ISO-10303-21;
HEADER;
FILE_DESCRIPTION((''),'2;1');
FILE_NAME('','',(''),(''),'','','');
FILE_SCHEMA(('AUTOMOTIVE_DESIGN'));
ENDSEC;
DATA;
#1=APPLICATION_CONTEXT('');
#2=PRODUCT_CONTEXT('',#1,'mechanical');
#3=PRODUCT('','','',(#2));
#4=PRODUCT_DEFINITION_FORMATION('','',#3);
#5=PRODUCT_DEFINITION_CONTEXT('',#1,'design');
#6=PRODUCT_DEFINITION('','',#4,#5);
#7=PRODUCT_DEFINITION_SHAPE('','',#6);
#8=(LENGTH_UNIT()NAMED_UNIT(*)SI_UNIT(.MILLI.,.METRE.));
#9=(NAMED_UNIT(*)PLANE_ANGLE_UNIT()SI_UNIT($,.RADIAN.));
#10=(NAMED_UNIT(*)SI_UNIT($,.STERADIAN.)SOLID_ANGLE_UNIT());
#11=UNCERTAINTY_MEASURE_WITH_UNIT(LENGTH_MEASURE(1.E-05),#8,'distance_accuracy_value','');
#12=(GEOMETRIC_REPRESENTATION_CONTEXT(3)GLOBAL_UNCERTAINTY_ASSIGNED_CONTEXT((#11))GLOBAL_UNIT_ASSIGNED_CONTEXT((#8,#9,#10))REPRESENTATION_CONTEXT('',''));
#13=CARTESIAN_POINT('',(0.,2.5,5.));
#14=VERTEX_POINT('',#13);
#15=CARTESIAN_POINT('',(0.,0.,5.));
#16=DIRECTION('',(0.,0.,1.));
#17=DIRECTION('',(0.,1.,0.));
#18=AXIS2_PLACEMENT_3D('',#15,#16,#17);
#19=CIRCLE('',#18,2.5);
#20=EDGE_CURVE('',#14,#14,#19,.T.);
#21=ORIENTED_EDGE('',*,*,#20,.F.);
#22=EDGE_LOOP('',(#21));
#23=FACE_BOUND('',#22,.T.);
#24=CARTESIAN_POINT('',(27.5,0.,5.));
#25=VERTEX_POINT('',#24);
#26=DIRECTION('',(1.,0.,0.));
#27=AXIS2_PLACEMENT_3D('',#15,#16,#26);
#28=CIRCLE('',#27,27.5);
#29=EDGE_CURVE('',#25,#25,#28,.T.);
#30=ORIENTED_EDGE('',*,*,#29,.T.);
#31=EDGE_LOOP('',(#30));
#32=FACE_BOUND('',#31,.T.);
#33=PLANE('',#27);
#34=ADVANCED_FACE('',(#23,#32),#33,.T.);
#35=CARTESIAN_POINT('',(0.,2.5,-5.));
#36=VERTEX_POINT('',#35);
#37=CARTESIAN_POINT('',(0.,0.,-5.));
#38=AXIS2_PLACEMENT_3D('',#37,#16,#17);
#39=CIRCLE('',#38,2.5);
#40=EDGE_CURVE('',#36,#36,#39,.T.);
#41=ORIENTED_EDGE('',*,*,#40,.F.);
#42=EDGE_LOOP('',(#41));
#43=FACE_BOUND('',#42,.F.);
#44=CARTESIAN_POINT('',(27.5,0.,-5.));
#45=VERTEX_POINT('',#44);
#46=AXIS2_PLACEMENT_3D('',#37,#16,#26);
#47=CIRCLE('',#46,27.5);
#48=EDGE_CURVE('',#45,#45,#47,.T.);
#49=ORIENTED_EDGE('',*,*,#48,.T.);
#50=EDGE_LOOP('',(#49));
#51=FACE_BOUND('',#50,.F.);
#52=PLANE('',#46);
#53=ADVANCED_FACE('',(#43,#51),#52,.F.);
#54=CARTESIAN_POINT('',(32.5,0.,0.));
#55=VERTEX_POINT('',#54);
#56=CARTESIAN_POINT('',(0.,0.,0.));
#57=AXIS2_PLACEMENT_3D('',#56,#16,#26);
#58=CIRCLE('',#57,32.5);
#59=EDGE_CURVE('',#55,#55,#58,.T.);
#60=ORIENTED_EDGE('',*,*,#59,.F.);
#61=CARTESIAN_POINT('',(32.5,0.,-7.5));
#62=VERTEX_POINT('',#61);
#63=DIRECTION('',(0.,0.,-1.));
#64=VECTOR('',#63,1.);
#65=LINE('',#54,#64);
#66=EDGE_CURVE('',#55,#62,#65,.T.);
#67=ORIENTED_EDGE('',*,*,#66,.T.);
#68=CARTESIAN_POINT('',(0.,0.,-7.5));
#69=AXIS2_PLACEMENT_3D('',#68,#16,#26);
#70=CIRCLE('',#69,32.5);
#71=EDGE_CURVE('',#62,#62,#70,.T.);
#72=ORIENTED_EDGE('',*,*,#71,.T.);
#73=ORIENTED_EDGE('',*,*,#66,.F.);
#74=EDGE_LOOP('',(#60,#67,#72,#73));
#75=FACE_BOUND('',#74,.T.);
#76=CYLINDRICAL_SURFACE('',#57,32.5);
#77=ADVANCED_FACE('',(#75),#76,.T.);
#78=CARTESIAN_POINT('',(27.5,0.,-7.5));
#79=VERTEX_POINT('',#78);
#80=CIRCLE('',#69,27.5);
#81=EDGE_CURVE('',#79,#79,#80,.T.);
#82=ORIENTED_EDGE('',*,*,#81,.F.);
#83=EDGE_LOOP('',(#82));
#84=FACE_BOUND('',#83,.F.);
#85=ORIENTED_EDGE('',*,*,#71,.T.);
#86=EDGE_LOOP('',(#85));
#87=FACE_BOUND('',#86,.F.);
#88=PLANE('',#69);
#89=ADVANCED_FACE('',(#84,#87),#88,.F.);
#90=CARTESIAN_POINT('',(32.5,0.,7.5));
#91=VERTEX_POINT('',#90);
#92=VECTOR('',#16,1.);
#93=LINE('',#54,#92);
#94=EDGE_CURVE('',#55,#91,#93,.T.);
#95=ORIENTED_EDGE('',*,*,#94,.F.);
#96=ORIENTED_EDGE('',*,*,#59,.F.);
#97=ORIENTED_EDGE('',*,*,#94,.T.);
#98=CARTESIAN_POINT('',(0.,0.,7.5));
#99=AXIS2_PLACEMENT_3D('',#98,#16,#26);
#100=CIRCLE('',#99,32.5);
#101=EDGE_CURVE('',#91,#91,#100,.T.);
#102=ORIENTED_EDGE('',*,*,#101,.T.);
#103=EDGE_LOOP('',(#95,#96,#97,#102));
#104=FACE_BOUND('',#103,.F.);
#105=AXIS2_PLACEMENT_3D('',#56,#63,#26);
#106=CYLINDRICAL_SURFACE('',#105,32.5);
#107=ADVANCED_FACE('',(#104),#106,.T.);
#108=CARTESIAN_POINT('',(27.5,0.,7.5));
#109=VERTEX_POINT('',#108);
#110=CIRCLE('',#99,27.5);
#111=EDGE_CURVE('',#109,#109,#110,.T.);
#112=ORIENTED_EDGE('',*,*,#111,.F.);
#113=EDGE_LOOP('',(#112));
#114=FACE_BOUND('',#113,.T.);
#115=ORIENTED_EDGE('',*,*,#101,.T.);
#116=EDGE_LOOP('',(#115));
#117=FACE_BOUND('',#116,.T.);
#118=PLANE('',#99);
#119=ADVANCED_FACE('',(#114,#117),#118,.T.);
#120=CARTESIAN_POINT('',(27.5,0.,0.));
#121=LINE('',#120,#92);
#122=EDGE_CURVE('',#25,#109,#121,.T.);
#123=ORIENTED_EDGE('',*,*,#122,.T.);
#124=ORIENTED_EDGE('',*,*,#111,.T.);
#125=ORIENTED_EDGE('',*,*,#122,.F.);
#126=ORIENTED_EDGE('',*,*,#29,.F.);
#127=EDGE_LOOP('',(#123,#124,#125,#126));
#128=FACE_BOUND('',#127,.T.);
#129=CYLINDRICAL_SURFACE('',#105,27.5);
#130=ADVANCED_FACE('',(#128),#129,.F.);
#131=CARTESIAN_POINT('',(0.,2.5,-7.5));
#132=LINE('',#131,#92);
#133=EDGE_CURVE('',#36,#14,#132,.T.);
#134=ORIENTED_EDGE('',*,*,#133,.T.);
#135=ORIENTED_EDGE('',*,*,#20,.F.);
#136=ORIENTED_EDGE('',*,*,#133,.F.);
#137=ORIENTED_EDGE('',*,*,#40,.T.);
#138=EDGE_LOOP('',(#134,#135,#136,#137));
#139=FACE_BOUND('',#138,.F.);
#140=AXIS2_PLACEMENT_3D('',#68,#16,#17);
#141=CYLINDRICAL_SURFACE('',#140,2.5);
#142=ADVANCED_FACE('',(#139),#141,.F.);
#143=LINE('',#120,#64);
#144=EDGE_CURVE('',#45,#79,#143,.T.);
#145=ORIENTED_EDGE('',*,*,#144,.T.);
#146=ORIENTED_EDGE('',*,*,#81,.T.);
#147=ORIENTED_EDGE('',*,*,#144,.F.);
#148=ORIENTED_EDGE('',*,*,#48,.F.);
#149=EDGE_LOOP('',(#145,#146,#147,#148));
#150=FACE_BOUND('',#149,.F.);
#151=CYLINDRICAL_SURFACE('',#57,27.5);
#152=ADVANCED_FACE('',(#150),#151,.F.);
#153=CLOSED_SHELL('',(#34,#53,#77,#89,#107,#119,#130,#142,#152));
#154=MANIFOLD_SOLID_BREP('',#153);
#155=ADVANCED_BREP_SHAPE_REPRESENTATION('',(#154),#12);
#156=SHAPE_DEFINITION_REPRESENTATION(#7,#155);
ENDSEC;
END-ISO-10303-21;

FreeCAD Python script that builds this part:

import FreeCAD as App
import Part
import Sketcher
from FreeCAD import Vector

doc = App.newDocument("Part")
params = doc.addObject("Spreadsheet::Sheet", "Params")
for row, (alias, value) in enumerate([
    ("sketch1_diameter", "55 mm"),
    ("pad1_length", "10 mm"),
    ("sketch2_diameter", "65 mm"),
    ("sketch2_diameter2", "55 mm"),
    ("pad2_length", "15 mm"),
    ("sketch3_diameter", "5 mm"),
    ("hole_diameter", "5 mm"),
], start=1):
    params.set(f"A{row}", alias)
    params.set(f"B{row}", "=" + value)
    params.setAlias(f"B{row}", alias)

body = doc.addObject("PartDesign::Body", "Body")

# Sketch on XY plane
sketch1 = doc.addObject("Sketcher::SketchObject", "Sketch")
body.addObject(sketch1)
sketch1.AttachmentSupport = (doc.XY_Plane, [""])
sketch1.MapMode = "FlatFace"
sketch1.addGeometry(Part.Circle(Vector(0, 0, 0), Vector(0, 0, 1), 28), False)
sketch1.addConstraint([
    Sketcher.Constraint("Coincident", 0, 3, -1, 1),
    Sketcher.Constraint("Diameter", 0, 55.0),
])
sketch1.setExpression("Constraints[1]", "Params.sketch1_diameter")
pad1 = doc.addObject("PartDesign::Pad", "Pad")
body.addObject(pad1)
pad1.Profile = sketch1
pad1.setExpression("Length", "Params.pad1_length")
pad1.Midplane = True

# Sketch on XY plane
sketch2 = doc.addObject("Sketcher::SketchObject", "Sketch001")
body.addObject(sketch2)
sketch2.AttachmentSupport = (doc.XY_Plane, [""])
sketch2.MapMode = "FlatFace"
sketch2.addGeometry([
    Part.Circle(Vector(0, 0, 0), Vector(0, 0, 1), 32),
    Part.Circle(Vector(0, 0, 0), Vector(0, 0, 1), 28),
], False)
sketch2.addConstraint([
    Sketcher.Constraint("Coincident", 0, 3, -1, 1),
    Sketcher.Constraint("Coincident", 1, 3, -1, 1),
    Sketcher.Constraint("Diameter", 0, 65.0),
    Sketcher.Constraint("Diameter", 1, 55.0),
])
sketch2.setExpression("Constraints[2]", "Params.sketch2_diameter")
sketch2.setExpression("Constraints[3]", "Params.sketch2_diameter2")
pad2 = doc.addObject("PartDesign::Pad", "Pad001")
body.addObject(pad2)
pad2.Profile = sketch2
pad2.setExpression("Length", "Params.pad2_length")
pad2.Midplane = True

# Sketch on XY plane
sketch3 = doc.addObject("Sketcher::SketchObject", "Sketch002")
body.addObject(sketch3)
sketch3.AttachmentSupport = (doc.XY_Plane, [""])
sketch3.MapMode = "FlatFace"
sketch3.AttachmentOffset = App.Placement(Vector(0, 0, -7.5), App.Rotation())
sketch3.addGeometry(Part.Circle(Vector(0, 0, 0), Vector(0, 0, 1), 2.5), False)
sketch3.addConstraint([
    Sketcher.Constraint("Coincident", 0, 3, -1, 1),
    Sketcher.Constraint("Diameter", 0, 5.0),
])
sketch3.setExpression("Constraints[1]", "Params.sketch3_diameter")
doc.recompute()
hole = doc.addObject("PartDesign::Hole", "Hole")
body.addObject(hole)
hole.Profile = sketch3
hole.ThreadType = "None"
hole.setExpression("Diameter", "Params.hole_diameter")
hole.DepthType = "ThroughAll"
hole.Reversed = True

doc.recompute()
